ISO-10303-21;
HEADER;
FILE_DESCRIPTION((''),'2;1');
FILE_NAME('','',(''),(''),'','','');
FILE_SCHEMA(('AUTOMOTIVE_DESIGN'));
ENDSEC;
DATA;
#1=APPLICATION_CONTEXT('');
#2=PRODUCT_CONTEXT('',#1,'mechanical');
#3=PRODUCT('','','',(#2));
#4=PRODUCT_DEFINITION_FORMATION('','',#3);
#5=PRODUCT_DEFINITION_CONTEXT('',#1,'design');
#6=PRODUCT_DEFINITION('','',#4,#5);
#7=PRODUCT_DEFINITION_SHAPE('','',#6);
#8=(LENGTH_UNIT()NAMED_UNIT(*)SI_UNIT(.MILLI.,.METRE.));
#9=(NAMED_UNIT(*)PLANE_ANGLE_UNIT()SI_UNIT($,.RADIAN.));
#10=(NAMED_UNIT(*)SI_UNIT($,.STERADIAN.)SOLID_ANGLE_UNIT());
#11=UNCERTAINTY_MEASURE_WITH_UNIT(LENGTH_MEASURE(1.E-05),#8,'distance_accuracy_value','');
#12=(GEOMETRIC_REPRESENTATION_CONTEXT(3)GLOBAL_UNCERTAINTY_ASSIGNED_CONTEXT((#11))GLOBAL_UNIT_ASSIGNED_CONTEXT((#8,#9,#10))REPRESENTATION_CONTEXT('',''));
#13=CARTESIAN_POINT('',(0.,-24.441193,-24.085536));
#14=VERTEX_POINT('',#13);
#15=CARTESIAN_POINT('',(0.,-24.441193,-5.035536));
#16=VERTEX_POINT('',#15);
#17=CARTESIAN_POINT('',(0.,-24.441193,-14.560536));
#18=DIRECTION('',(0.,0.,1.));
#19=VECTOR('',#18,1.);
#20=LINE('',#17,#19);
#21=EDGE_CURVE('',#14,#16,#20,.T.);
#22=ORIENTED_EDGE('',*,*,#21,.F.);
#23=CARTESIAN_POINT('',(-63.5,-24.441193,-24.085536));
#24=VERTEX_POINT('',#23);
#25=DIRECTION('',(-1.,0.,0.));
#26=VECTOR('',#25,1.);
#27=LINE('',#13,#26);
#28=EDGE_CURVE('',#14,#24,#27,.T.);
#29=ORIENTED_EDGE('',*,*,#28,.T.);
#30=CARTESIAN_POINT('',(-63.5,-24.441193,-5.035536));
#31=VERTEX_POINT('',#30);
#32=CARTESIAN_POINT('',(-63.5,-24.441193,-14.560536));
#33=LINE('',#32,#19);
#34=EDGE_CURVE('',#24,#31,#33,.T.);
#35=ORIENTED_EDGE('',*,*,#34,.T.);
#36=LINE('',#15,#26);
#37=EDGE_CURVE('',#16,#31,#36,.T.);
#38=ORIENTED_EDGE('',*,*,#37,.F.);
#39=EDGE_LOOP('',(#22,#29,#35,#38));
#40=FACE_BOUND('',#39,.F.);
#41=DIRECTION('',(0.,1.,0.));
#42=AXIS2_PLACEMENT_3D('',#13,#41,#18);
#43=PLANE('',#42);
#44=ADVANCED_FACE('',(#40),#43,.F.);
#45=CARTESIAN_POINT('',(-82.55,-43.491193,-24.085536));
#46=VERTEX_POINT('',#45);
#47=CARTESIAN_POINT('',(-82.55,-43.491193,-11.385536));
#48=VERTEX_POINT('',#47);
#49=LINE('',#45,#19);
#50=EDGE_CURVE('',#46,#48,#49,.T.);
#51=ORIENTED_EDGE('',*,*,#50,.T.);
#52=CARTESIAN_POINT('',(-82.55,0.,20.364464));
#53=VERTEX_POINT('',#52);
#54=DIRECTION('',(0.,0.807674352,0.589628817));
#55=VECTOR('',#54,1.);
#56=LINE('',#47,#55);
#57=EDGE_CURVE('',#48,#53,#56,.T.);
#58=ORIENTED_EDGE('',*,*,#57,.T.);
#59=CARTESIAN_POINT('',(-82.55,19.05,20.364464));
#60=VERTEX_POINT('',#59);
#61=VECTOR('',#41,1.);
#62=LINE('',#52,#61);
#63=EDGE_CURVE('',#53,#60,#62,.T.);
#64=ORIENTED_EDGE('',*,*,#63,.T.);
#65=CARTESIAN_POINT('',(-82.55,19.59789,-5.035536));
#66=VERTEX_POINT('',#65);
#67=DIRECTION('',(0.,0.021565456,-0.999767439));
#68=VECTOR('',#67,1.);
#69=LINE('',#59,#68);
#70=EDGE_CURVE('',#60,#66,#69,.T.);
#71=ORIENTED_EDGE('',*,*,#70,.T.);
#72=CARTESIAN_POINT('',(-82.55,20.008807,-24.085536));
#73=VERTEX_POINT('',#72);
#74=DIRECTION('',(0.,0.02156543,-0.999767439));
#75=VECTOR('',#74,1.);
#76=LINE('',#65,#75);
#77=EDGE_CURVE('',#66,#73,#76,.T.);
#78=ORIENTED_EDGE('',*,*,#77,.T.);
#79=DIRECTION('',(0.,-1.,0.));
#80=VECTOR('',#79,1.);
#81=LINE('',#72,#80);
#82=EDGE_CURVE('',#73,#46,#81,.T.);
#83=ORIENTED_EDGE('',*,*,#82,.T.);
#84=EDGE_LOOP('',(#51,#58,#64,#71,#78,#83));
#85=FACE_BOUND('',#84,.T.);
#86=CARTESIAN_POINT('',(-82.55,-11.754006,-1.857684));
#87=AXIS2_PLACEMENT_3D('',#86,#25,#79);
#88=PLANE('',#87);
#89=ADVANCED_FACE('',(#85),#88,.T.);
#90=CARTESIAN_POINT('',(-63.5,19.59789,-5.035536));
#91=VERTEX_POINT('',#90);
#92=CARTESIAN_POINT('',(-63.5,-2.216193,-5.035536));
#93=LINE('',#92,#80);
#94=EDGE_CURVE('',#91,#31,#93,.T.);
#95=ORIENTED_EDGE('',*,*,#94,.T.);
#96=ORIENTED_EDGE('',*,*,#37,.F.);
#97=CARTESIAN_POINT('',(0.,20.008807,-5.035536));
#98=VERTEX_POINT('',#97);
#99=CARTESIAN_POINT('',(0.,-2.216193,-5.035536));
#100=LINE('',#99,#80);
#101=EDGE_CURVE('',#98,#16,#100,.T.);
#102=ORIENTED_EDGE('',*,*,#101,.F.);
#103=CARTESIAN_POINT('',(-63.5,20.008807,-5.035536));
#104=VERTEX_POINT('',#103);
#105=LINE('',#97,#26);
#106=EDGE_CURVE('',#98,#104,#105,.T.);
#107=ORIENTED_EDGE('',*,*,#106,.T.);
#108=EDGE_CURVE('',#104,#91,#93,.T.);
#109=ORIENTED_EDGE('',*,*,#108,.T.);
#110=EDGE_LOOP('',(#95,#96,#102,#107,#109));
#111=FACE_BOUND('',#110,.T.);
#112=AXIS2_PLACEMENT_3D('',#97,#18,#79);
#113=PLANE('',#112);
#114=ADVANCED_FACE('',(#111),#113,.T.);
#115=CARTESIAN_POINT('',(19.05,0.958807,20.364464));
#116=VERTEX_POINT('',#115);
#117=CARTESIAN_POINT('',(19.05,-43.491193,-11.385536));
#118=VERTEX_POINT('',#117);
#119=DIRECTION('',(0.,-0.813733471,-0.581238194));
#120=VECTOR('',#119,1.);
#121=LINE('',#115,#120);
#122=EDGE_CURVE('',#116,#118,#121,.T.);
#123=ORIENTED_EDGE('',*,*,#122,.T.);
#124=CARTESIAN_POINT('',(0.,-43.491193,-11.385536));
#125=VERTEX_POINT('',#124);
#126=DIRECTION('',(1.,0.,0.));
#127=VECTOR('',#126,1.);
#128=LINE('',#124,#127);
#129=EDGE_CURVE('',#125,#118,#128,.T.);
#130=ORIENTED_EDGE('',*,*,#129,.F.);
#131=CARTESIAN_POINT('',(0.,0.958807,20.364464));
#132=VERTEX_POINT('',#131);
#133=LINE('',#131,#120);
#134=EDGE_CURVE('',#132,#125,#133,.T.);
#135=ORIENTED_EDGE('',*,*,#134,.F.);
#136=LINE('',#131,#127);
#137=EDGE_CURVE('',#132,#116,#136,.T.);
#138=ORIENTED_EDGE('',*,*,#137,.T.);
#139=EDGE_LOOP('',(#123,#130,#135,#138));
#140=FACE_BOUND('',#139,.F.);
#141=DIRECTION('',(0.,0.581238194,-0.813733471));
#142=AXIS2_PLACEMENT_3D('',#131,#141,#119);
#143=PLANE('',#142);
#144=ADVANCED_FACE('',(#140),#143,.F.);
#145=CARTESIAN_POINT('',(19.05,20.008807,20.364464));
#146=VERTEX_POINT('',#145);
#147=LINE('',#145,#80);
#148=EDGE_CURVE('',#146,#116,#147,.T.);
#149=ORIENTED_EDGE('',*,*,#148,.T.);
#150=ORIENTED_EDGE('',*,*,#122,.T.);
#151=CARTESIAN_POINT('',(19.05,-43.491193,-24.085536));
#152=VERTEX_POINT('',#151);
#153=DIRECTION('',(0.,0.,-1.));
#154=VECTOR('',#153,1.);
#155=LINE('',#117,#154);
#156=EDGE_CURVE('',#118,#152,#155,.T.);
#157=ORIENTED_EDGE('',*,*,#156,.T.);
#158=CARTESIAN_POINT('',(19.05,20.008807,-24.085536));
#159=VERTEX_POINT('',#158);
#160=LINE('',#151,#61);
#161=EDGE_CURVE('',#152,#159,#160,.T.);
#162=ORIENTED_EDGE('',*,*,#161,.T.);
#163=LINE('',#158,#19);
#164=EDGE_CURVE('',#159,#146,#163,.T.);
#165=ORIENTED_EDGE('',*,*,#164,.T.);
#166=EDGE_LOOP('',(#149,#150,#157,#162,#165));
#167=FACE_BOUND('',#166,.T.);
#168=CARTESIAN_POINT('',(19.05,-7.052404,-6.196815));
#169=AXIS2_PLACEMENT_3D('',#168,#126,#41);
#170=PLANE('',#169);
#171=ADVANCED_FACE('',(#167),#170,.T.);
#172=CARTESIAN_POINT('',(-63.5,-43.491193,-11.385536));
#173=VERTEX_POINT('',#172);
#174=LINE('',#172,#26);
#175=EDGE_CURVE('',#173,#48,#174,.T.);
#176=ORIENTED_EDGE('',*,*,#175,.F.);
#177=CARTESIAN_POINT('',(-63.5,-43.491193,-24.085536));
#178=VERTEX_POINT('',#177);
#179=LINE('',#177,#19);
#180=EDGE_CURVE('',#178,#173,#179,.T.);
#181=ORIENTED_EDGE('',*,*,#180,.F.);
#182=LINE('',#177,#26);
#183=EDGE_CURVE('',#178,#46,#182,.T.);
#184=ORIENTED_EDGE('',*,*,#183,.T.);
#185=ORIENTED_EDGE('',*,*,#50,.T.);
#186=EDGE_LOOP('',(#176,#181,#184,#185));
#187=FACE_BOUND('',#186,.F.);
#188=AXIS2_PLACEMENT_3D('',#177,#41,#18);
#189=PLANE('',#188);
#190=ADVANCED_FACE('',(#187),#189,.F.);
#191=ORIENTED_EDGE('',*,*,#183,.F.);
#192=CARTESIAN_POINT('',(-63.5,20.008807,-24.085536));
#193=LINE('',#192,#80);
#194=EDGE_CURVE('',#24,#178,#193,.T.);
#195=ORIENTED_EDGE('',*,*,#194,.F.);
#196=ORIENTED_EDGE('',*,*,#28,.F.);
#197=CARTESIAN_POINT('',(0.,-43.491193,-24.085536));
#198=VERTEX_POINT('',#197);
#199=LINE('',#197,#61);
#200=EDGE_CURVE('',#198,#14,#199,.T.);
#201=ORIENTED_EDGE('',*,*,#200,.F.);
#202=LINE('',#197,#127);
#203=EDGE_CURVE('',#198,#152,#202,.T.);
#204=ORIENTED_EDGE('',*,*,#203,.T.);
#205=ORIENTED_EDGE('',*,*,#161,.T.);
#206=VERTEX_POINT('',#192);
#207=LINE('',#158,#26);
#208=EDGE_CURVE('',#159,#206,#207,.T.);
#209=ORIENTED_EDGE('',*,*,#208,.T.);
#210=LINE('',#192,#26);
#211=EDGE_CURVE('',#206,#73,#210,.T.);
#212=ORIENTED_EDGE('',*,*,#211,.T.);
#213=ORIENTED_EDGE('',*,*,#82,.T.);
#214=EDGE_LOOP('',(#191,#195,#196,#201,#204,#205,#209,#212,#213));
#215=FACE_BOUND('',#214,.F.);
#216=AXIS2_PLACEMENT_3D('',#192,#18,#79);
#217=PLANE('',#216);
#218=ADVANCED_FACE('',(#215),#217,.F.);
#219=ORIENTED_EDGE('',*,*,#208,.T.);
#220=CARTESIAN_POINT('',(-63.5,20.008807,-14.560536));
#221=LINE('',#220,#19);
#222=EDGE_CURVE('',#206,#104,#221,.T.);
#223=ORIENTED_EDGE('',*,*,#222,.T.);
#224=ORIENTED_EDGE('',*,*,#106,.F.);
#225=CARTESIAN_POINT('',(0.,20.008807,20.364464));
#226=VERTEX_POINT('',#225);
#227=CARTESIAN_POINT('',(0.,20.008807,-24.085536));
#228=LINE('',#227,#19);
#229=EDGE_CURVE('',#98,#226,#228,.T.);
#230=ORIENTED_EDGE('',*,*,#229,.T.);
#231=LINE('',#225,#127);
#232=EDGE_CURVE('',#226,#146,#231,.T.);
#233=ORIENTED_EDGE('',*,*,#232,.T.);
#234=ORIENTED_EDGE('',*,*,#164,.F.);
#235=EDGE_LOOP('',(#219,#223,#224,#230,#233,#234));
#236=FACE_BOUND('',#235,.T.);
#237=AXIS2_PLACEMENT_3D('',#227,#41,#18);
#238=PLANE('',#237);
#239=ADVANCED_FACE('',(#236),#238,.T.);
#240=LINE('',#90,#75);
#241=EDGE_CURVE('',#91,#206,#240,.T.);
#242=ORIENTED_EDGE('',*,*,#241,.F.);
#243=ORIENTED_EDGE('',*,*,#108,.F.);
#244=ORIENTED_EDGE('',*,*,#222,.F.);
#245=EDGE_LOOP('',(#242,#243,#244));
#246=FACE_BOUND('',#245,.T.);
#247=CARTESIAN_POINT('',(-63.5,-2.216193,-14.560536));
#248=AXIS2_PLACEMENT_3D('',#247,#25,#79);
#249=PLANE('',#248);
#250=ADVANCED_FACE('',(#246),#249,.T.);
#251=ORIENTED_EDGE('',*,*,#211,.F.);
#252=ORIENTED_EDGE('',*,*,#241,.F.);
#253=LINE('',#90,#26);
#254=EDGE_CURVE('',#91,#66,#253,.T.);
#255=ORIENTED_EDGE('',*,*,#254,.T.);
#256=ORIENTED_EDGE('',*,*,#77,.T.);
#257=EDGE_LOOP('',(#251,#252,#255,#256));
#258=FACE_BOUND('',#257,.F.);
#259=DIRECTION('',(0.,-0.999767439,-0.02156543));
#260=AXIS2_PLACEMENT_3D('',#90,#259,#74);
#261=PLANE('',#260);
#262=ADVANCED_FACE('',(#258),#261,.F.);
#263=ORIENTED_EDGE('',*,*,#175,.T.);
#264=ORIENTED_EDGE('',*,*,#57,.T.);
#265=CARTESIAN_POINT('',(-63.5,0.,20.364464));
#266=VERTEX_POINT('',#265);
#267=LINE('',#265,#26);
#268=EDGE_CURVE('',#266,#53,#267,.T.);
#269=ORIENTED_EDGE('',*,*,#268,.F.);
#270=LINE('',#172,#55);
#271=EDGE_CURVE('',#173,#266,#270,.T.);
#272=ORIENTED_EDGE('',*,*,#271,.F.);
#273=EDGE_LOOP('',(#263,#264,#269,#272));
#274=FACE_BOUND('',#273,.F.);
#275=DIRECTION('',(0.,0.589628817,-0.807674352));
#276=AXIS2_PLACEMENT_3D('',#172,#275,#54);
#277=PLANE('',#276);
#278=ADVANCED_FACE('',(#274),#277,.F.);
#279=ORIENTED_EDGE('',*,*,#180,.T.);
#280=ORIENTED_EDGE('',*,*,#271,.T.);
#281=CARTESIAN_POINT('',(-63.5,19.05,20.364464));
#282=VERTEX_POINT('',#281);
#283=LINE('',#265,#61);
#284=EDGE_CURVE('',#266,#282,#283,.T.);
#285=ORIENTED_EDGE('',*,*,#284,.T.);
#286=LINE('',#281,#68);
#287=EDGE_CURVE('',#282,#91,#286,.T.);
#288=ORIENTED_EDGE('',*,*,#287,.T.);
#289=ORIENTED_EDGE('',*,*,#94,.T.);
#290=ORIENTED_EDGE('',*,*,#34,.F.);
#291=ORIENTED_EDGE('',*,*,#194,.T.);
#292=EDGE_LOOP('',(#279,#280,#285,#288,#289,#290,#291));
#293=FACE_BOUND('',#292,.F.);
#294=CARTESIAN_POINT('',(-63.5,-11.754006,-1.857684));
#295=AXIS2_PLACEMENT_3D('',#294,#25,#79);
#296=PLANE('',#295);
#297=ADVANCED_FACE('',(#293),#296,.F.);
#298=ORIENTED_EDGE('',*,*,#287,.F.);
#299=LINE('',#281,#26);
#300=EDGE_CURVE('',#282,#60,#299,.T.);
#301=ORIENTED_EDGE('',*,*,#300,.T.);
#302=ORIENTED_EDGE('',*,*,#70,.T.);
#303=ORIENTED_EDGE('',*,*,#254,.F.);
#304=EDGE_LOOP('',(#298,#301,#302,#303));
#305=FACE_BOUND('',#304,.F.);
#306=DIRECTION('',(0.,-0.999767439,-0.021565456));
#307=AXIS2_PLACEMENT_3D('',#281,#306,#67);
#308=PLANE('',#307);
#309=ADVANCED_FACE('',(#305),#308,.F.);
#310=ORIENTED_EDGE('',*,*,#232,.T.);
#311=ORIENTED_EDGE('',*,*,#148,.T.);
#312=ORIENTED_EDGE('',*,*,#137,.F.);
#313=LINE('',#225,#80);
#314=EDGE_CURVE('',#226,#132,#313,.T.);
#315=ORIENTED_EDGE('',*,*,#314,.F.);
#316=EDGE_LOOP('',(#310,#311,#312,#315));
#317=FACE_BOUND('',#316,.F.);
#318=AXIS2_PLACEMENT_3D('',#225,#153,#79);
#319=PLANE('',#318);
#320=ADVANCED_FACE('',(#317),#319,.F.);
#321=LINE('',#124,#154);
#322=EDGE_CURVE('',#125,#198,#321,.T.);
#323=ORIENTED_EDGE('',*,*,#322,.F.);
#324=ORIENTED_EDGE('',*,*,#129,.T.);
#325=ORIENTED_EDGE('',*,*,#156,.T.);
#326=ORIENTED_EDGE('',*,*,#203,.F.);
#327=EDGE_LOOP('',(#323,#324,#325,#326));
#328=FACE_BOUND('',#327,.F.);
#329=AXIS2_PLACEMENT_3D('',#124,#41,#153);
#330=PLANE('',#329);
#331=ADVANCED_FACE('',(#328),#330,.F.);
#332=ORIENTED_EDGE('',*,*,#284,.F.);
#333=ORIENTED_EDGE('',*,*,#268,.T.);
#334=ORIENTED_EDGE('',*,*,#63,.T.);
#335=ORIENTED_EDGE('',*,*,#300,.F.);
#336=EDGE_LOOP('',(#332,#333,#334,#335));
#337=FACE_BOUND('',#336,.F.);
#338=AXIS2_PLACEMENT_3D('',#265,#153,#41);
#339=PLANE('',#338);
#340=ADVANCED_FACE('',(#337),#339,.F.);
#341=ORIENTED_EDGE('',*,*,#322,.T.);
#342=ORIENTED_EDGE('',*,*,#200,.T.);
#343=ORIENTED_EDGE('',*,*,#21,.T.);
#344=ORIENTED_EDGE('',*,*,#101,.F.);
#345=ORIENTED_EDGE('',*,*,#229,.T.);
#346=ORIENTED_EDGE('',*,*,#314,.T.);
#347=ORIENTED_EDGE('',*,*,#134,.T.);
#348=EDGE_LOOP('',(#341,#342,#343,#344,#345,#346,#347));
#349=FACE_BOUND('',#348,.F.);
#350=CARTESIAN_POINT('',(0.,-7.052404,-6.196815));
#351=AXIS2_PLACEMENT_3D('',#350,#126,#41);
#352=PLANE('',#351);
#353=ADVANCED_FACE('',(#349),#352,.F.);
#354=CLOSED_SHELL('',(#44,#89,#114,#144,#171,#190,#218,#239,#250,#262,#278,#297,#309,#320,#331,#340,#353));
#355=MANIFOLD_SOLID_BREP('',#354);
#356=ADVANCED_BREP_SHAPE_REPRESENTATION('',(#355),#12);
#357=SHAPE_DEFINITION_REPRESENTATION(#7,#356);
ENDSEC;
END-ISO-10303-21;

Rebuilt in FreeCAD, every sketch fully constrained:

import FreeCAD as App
import Part
import Sketcher
Q = App.Units.Quantity


def add_polygon(sketch, points):
    """Adds a closed chain of lines whose ends are joined by coincident constraints."""
    first, n = sketch.GeometryCount, len(points)
    for a, b in zip(points, points[1:] + points[:1]):
        sketch.addGeometry(Part.LineSegment(App.Vector(*a, 0), App.Vector(*b, 0)), False)
    for i in range(n):
        sketch.addConstraint(Sketcher.Constraint("Coincident", first + i, 2, first + (i + 1) % n, 1))

doc = App.newDocument("Part")
body = doc.addObject("PartDesign::Body", "Body")

sketch1 = body.newObject("Sketcher::SketchObject", "Sketch")
sketch1.AttachmentSupport = (doc.getObject("YZ_Plane"), [""])
sketch1.MapMode = "FlatFace"
add_polygon(sketch1, [(0.958807, 20.364464), (-43.491193, -11.385536), (-43.491193, -24.085536), (20.008807, -24.085536), (20.008807, 20.364464)])
sketch1.addConstraint([
    Sketcher.Constraint("Vertical", 1),
    Sketcher.Constraint("Horizontal", 2),
    Sketcher.Constraint("Vertical", 3),
    Sketcher.Constraint("Horizontal", 4),
    Sketcher.Constraint("DistanceX", 2, 1, 2, 2, Q("2.5 in")),
    Sketcher.Constraint("DistanceY", 1, 2, 1, 1, Q("0.5 in")),
    Sketcher.Constraint("DistanceX", 4, 2, 4, 1, Q("0.75 in")),
    Sketcher.Constraint("DistanceY", 3, 1, 3, 2, Q("1.75 in")),
    Sketcher.Constraint("DistanceX", 0, 2, -1, 1, Q("43.491193 mm")),
    Sketcher.Constraint("DistanceY", 0, 2, -1, 1, Q("11.385536 mm")),
])
pad1 = body.newObject("PartDesign::Pad", "Pad")
pad1.Profile = sketch1
pad1.Length = Q("0.75 in")

sketch2 = body.newObject("Sketcher::SketchObject", "Sketch001")
sketch2.AttachmentSupport = (doc.getObject("YZ_Plane"), [""])
sketch2.MapMode = "FlatFace"
add_polygon(sketch2, [(20.008807, -5.035536), (20.008807, -24.085536), (-24.441193, -24.085536), (-24.441193, -5.035536)])
sketch2.addConstraint([
    Sketcher.Constraint("Vertical", 0),
    Sketcher.Constraint("Horizontal", 1),
    Sketcher.Constraint("Vertical", 2),
    Sketcher.Constraint("Horizontal", 3),
    Sketcher.Constraint("DistanceX", 1, 2, 1, 1, Q("1.75 in")),
    Sketcher.Constraint("DistanceY", 0, 2, 0, 1, Q("0.75 in")),
    Sketcher.Constraint("DistanceX", -1, 1, 0, 2, Q("20.008807 mm")),
    Sketcher.Constraint("DistanceY", 0, 2, -1, 1, Q("24.085536 mm")),
])
pad2 = body.newObject("PartDesign::Pad", "Pad001")
pad2.Profile = sketch2
pad2.Length = Q("2.5 in")
pad2.Reversed = True

sketch3 = body.newObject("Sketcher::SketchObject", "Sketch002")
sketch3.AttachmentSupport = (doc.getObject("YZ_Plane"), [""])
sketch3.MapMode = "FlatFace"
sketch3.AttachmentOffset = App.Placement(App.Vector(0, 0, -2.5 * 25.4), App.Rotation())
add_polygon(sketch3, [(-43.491193, -24.085536), (-43.491193, -11.385536), (0, 20.364464), (19.05, 20.364464), (19.59789, -5.035536), (20.008807, -24.085536)])
sketch3.addConstraint([
    Sketcher.Constraint("Vertical", 0),
    Sketcher.Constraint("Horizontal", 2),
    Sketcher.Constraint("Horizontal", 5),
    Sketcher.Constraint("PointOnObject", 1, 2, -2),
    Sketcher.Constraint("Parallel", 3, 4),
    Sketcher.Constraint("DistanceX", 5, 2, 5, 1, Q("2.5 in")),
    Sketcher.Constraint("DistanceY", 0, 1, 0, 2, Q("0.5 in")),
    Sketcher.Constraint("DistanceY", 3, 2, 2, 2, Q("1 in")),
    Sketcher.Constraint("DistanceX", 2, 1, 2, 2, Q("0.75 in")),
    Sketcher.Constraint("DistanceY", 0, 2, 1, 2, Q("1.25 in")),
    Sketcher.Constraint("Distance", 3, Q("25.405908 mm")),
    Sketcher.Constraint("DistanceY", 0, 2, -1, 1, Q("11.385536 mm")),
])
pad3 = body.newObject("PartDesign::Pad", "Pad002")
pad3.Profile = sketch3
pad3.Length = Q("0.75 in")
pad3.Reversed = True

doc.recompute()
